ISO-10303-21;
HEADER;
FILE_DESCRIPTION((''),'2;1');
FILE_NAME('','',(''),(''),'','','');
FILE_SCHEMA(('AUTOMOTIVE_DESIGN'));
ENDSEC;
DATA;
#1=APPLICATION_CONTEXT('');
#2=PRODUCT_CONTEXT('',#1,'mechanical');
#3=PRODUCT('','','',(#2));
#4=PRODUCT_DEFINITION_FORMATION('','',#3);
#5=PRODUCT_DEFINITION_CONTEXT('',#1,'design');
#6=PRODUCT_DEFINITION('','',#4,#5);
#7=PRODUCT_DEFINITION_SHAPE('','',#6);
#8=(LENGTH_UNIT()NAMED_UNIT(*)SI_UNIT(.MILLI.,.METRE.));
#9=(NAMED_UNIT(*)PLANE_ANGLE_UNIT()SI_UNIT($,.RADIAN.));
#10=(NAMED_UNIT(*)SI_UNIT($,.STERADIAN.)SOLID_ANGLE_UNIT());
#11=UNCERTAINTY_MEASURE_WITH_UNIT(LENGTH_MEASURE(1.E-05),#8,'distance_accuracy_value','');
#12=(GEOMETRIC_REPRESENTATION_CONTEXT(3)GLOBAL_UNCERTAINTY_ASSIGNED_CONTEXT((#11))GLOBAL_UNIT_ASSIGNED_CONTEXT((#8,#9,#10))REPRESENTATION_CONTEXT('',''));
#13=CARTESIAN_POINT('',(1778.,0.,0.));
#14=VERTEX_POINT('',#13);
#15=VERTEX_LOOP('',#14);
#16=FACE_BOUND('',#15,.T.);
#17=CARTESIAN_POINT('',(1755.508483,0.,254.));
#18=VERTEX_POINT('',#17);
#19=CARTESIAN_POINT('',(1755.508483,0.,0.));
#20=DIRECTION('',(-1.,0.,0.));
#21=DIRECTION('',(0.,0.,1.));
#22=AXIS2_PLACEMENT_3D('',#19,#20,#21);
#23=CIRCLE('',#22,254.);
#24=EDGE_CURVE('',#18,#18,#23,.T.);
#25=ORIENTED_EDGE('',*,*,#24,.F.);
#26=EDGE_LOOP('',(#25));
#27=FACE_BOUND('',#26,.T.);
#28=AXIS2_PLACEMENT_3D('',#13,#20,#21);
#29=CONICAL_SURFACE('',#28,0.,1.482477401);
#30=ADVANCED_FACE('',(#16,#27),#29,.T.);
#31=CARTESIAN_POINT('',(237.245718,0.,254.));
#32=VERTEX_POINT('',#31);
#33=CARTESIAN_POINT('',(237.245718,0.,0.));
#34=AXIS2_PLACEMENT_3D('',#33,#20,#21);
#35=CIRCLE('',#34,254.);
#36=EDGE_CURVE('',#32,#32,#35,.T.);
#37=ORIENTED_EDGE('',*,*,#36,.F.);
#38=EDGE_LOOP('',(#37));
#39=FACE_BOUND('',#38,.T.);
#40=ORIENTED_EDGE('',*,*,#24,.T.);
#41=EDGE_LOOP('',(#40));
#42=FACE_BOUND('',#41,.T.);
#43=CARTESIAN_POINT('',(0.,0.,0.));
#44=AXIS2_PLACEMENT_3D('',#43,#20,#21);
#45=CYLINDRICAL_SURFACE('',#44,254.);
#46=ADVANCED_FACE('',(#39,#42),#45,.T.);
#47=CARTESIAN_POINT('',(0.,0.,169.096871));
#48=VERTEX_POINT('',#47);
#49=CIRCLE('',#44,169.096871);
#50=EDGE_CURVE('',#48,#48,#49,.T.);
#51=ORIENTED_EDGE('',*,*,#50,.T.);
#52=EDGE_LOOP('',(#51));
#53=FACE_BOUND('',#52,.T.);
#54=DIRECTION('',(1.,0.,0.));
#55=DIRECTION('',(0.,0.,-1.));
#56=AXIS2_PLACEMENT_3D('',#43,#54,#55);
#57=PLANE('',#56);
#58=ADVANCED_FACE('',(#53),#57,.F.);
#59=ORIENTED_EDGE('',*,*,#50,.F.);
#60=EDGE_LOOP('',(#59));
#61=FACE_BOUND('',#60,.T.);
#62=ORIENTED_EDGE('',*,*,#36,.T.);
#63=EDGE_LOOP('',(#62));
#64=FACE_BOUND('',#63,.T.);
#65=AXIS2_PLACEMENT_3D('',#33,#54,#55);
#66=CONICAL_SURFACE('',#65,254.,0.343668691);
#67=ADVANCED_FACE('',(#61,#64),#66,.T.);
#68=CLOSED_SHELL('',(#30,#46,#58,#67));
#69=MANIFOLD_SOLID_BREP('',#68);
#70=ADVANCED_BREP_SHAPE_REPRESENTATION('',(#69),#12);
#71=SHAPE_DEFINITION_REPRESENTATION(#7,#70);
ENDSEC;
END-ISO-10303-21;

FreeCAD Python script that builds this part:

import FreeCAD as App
import Part
import Sketcher
Q = App.Units.Quantity


def add_polygon(sketch, points):
    """Adds a closed chain of lines whose ends are joined by coincident constraints."""
    first, n = sketch.GeometryCount, len(points)
    for a, b in zip(points, points[1:] + points[:1]):
        sketch.addGeometry(Part.LineSegment(App.Vector(*a, 0), App.Vector(*b, 0)), False)
    for i in range(n):
        sketch.addConstraint(Sketcher.Constraint("Coincident", first + i, 2, first + (i + 1) % n, 1))

doc = App.newDocument("Part")
body = doc.addObject("PartDesign::Body", "Body")

sketch1 = doc.addObject("Sketcher::SketchObject", "Sketch")
body.addObject(sketch1)
sketch1.AttachmentSupport = (doc.XY_Plane, [""])
sketch1.MapMode = "FlatFace"
add_polygon(sketch1, [(0, 169.096871), (0, 0), (1778, 0), (1755.508483, 254), (237.245718, 254)])
sketch1.addConstraint([
    Sketcher.Constraint("Vertical", 0),
    Sketcher.Constraint("Horizontal", 1),
    Sketcher.Constraint("Horizontal", 3),
    Sketcher.Constraint("Coincident", 0, 2, -1, 1),
    Sketcher.Constraint("DistanceX", 1, 1, 1, 2, Q("70 in")),
    Sketcher.Constraint("DistanceY", -1, 1, 2, 2, Q("10 in")),
    Sketcher.Constraint("Distance", 4, 251.980301),
    Sketcher.Constraint("DistanceY", 0, 2, 0, 1, 169.096871),
    Sketcher.Constraint("Distance", 2, 254.993859),
])
revolution = doc.addObject("PartDesign::Revolution", "Revolution")
body.addObject(revolution)
revolution.Profile = sketch1
revolution.ReferenceAxis = (sketch1, ["H_Axis"])
revolution.Angle = 360

doc.recompute()
